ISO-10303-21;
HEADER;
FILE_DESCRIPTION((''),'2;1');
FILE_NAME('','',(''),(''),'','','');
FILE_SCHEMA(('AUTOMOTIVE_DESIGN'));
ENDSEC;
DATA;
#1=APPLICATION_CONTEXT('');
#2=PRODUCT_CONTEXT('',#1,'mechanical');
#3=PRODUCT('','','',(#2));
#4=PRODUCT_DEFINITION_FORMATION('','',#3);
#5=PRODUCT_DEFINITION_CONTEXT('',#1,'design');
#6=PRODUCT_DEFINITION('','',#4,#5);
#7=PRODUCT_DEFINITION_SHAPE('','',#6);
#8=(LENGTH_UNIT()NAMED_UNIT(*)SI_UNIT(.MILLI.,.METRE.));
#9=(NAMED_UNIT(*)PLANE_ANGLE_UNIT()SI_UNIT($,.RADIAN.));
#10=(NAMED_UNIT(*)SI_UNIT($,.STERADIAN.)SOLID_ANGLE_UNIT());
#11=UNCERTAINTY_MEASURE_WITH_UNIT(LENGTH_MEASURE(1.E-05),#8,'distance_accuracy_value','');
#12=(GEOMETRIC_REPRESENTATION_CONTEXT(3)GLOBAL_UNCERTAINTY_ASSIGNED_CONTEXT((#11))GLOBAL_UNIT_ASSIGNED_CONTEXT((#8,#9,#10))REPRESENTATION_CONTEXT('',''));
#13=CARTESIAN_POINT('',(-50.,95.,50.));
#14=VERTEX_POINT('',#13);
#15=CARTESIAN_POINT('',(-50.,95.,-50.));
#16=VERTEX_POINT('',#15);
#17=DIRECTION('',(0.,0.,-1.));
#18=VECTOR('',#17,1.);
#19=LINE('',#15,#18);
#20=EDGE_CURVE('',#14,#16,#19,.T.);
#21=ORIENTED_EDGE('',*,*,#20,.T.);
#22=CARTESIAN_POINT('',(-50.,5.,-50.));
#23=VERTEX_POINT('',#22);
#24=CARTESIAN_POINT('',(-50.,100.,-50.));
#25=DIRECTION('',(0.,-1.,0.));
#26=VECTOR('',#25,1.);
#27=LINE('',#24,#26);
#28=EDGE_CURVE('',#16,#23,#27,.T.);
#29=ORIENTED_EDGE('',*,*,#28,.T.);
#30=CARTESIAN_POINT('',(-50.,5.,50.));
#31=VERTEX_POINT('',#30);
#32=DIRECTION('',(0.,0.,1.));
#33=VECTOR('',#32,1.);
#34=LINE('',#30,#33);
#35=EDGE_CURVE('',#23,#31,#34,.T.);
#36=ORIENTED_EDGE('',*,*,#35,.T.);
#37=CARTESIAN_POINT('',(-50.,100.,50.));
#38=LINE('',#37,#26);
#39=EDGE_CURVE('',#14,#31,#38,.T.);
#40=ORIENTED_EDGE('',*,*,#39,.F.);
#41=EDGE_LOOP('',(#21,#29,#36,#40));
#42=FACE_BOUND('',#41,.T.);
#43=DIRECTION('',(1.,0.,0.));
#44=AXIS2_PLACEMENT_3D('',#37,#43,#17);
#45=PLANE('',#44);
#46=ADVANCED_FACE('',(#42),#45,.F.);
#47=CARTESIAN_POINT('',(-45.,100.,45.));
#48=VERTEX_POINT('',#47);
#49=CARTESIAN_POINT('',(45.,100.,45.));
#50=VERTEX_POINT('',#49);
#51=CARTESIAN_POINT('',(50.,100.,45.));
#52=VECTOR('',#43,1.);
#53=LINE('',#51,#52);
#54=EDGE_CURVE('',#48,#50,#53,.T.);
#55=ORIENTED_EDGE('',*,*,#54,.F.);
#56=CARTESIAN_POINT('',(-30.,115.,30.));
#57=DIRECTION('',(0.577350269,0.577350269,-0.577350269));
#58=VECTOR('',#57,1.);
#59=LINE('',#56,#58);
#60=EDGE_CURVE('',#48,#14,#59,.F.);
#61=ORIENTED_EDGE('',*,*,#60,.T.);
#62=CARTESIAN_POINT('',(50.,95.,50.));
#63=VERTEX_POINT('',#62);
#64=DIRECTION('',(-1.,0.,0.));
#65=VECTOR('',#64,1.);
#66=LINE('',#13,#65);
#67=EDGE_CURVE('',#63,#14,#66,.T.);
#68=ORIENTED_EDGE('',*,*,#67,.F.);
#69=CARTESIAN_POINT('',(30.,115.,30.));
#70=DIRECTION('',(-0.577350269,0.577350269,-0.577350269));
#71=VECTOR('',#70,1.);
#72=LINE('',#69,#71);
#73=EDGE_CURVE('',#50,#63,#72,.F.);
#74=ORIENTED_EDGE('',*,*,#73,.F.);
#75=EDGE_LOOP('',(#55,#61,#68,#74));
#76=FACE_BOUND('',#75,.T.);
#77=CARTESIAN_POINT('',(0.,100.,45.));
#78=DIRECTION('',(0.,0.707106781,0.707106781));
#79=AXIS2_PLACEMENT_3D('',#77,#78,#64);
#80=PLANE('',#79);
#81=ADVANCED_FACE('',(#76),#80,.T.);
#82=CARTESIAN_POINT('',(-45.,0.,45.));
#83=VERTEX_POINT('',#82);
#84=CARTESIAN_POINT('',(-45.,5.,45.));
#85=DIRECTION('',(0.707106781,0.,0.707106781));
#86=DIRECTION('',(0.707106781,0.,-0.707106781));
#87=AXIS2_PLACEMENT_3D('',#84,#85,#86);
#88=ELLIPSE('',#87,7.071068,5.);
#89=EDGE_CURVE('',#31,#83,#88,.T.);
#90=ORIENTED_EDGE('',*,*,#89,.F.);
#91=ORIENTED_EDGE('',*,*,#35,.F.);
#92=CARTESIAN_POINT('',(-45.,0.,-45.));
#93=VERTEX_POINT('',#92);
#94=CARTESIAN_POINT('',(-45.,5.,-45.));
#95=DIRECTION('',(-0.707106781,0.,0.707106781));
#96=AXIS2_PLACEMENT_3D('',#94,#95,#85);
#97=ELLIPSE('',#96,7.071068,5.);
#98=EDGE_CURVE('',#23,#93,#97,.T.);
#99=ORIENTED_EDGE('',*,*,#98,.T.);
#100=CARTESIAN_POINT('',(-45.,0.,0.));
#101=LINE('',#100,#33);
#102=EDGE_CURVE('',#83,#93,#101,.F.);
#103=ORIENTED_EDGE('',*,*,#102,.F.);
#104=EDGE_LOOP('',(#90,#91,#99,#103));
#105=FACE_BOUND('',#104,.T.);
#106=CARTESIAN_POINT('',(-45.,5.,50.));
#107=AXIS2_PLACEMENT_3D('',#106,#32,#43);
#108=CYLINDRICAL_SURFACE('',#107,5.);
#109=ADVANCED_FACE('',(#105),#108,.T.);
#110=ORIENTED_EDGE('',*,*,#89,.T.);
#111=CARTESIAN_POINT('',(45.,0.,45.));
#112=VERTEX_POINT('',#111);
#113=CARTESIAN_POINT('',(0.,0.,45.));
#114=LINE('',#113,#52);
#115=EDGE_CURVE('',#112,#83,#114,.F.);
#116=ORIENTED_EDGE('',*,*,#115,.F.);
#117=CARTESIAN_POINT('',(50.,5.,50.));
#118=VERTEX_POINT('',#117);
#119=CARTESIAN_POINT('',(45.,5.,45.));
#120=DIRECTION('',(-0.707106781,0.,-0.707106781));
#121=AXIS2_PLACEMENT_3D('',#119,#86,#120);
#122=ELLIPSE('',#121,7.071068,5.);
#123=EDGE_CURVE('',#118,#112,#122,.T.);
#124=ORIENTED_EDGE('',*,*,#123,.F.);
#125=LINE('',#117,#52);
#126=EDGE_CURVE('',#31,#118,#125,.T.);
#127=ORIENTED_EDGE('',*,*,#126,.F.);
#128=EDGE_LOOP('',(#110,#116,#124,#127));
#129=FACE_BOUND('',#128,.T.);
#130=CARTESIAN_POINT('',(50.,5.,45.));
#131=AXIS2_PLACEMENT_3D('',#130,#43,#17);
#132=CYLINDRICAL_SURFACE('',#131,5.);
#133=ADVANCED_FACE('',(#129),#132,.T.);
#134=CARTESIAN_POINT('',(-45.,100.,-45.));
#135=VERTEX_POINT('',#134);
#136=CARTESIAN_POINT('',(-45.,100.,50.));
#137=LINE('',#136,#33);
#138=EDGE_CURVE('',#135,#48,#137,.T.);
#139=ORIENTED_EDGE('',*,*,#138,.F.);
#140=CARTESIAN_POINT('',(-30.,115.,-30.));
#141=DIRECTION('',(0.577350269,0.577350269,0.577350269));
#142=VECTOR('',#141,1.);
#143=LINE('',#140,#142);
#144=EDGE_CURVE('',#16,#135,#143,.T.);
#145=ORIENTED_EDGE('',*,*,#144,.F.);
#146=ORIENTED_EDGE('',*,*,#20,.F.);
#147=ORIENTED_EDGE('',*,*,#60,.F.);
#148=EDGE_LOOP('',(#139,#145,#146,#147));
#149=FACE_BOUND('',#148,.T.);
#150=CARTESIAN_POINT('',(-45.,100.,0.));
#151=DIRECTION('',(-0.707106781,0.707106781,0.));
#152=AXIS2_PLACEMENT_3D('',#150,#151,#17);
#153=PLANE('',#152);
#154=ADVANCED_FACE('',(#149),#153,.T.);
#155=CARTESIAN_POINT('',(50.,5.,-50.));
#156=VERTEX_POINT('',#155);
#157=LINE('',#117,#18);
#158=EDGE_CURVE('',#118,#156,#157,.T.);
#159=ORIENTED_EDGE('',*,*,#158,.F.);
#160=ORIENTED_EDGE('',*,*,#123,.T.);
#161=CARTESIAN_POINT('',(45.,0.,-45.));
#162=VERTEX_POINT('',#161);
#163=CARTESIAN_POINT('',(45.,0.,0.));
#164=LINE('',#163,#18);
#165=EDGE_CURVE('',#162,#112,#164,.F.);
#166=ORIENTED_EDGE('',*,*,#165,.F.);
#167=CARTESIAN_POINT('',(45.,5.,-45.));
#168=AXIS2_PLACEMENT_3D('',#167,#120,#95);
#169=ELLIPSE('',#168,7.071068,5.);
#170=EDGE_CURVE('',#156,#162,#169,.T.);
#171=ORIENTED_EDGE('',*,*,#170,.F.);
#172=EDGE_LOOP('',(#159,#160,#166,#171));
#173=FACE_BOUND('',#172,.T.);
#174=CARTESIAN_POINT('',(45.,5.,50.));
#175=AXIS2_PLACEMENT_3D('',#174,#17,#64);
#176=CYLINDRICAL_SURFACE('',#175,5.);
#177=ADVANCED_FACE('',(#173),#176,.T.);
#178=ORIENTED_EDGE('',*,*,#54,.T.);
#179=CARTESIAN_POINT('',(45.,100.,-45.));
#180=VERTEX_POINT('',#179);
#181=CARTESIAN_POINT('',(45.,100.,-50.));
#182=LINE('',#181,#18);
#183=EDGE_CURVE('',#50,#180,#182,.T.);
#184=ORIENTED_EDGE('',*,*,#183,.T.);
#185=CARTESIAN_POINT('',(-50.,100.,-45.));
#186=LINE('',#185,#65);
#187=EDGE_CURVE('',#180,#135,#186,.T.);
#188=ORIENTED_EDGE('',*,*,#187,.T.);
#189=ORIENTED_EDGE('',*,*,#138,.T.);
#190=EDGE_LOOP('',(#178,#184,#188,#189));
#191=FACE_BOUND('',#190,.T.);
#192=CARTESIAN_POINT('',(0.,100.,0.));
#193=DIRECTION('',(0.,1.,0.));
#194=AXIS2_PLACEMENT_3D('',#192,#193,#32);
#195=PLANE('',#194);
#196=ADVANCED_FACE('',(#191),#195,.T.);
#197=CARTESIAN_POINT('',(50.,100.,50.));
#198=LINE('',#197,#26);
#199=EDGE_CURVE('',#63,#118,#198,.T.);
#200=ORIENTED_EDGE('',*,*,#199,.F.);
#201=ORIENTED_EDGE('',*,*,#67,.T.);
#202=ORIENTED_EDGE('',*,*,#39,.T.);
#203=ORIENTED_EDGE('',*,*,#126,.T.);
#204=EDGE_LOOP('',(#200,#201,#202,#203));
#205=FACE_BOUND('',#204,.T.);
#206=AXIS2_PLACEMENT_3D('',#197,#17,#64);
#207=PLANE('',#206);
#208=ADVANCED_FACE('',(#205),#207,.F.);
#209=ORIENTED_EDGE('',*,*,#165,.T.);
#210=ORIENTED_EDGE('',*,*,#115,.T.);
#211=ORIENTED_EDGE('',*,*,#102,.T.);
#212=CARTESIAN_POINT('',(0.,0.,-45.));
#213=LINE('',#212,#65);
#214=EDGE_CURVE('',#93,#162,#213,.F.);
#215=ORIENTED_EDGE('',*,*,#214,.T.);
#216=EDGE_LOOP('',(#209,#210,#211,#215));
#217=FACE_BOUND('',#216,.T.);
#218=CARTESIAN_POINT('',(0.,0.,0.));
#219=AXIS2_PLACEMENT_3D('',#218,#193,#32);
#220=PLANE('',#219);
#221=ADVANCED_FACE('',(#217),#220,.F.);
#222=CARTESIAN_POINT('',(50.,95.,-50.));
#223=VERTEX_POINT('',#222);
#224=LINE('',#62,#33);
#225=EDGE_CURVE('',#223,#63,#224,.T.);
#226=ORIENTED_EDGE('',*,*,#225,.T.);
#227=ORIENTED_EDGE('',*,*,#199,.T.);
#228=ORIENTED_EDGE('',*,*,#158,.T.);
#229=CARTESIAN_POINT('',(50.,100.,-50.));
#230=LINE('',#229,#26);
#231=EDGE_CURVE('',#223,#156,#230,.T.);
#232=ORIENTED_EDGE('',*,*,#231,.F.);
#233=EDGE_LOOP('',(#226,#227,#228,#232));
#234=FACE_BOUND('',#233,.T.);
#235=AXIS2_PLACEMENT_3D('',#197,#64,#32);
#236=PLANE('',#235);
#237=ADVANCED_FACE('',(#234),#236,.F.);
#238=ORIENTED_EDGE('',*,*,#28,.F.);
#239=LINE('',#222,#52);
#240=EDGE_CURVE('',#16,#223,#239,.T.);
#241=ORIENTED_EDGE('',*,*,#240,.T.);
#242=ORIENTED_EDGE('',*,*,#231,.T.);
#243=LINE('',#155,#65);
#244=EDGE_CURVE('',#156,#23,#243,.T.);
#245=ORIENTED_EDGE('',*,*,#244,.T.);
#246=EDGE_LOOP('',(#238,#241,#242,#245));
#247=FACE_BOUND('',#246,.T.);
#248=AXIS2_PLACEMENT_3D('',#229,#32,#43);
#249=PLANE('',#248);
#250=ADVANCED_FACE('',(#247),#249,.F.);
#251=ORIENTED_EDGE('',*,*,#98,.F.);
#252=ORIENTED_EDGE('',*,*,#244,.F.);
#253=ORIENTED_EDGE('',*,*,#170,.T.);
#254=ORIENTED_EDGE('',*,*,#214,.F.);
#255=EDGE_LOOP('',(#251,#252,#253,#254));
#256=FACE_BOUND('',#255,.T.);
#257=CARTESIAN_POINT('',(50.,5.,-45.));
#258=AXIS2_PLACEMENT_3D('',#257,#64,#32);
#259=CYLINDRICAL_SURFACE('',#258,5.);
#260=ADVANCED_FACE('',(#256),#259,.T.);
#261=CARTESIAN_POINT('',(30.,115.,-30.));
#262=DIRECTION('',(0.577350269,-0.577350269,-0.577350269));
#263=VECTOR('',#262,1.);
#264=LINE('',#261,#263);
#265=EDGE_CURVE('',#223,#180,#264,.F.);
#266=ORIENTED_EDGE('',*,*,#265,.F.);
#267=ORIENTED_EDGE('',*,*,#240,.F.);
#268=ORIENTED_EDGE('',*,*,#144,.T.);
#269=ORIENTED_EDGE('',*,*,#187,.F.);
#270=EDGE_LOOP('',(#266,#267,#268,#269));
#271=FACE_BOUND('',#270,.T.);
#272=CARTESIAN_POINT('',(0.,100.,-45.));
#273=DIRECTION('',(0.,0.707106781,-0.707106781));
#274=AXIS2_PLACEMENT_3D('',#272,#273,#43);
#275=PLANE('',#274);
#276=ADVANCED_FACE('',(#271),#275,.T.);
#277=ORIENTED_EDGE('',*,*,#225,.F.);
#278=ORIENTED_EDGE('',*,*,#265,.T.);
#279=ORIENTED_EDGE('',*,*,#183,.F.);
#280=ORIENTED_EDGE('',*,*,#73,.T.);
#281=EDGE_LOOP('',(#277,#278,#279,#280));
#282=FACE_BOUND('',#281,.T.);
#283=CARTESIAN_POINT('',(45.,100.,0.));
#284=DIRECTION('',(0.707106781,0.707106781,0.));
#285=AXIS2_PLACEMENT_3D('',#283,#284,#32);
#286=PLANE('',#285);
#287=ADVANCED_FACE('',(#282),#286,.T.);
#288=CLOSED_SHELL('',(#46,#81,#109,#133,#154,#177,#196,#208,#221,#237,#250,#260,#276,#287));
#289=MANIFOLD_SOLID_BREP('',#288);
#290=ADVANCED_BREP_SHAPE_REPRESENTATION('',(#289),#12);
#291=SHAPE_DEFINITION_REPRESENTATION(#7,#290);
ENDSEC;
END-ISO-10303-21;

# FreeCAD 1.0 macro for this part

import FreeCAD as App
import Part
import Sketcher


def edges_at(feature, points):
    """Names of the edges that pass closest to the given points."""
    edges = feature.Shape.Edges
    near = lambda p: min(range(len(edges)), key=lambda i: edges[i].distToShape(Part.Vertex(*p))[0])
    return sorted({f"Edge{near(p) + 1}" for p in points})

doc = App.newDocument("Part")
body = doc.addObject("PartDesign::Body", "Body")

# Sketch on XZ plane
sketch1 = body.newObject("Sketcher::SketchObject", "Sketch")
sketch1.AttachmentSupport = (doc.getObject("XZ_Plane"), [""])
sketch1.MapMode = "FlatFace"
sketch1.addGeometry([
    Part.LineSegment(App.Vector(-50, -50, 0), App.Vector(-50, 50, 0)),
    Part.LineSegment(App.Vector(-50, 50, 0), App.Vector(50, 50, 0)),
    Part.LineSegment(App.Vector(50, 50, 0), App.Vector(50, -50, 0)),
    Part.LineSegment(App.Vector(50, -50, 0), App.Vector(-50, -50, 0)),
], False)
sketch1.addConstraint([
    Sketcher.Constraint("Coincident", 0, 2, 1, 1),
    Sketcher.Constraint("Coincident", 1, 2, 2, 1),
    Sketcher.Constraint("Coincident", 2, 2, 3, 1),
    Sketcher.Constraint("Coincident", 3, 2, 0, 1),
    Sketcher.Constraint("Vertical", 0),
    Sketcher.Constraint("Horizontal", 1),
    Sketcher.Constraint("Vertical", 2),
    Sketcher.Constraint("Horizontal", 3),
    Sketcher.Constraint("Symmetric", 0, 2, 2, 2, -1, 1),
    Sketcher.Constraint("Equal", 3, 0),
    Sketcher.Constraint("DistanceX", 1, 1, 1, 2, 100.0),
])
pad1 = body.newObject("PartDesign::Pad", "Pad")
pad1.Profile = sketch1
pad1.Length = 100
pad1.Reversed = True
doc.recompute()

fillet = body.newObject("PartDesign::Fillet", "Fillet")
fillet.Base = (pad1, edges_at(pad1, [
    (0, 0, -50),
    (50, 0, 0),
    (0, 0, 50),
    (-50, 0, 0),
]))
fillet.Radius = 5
doc.recompute()

chamfer = body.newObject("PartDesign::Chamfer", "Chamfer")
chamfer.Base = (fillet, edges_at(fillet, [
    (50, 100, 0),
    (0, 100, -50),
    (-50, 100, 0),
    (0, 100, 50),
]))
chamfer.Size = 5

doc.recompute()
